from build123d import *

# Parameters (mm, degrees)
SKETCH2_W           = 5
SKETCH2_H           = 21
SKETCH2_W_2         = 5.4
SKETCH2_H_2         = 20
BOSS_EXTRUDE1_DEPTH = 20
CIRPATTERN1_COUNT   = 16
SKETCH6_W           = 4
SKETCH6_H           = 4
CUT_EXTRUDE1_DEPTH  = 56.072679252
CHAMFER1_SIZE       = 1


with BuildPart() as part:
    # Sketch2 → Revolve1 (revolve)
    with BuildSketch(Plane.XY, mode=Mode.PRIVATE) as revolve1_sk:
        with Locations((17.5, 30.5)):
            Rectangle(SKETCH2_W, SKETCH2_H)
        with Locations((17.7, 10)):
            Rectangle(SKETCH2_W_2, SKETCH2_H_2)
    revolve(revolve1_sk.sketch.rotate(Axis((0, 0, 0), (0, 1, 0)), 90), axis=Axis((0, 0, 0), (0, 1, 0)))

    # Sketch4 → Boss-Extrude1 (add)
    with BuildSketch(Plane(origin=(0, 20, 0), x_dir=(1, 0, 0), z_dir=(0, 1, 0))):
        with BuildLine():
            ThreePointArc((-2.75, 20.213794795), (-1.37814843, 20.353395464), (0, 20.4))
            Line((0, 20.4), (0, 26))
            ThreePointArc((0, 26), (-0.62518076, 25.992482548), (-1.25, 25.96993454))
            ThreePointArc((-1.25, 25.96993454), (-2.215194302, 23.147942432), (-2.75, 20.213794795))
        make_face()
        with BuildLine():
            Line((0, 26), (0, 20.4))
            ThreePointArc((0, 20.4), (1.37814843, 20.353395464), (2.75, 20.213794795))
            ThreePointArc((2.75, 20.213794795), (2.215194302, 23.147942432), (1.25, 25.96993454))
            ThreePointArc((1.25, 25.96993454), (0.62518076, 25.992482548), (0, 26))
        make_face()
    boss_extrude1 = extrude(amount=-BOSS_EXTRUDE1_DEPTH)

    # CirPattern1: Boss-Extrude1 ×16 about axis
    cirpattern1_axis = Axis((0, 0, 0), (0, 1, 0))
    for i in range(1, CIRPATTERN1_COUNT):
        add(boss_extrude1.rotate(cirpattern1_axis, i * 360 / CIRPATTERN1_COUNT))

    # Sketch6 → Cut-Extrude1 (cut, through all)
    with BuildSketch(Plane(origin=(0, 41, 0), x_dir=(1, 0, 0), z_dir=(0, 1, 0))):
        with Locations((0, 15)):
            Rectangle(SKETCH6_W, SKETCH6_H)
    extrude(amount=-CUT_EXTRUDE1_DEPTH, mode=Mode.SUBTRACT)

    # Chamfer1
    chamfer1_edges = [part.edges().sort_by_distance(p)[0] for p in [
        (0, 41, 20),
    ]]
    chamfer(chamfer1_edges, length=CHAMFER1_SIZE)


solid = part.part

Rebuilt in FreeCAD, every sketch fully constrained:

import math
import FreeCAD as App
import Part
import Sketcher
Q = App.Units.Quantity


def edges_at(feature, points):
    """Names of the edges that pass closest to the given points."""
    edges = feature.Shape.Edges
    near = lambda p: min(range(len(edges)), key=lambda i: edges[i].distToShape(Part.Vertex(*p))[0])
    return sorted({f"Edge{near(p) + 1}" for p in points})


def add_polygon(sketch, points):
    """Adds a closed chain of lines whose ends are joined by coincident constraints."""
    first, n = sketch.GeometryCount, len(points)
    for a, b in zip(points, points[1:] + points[:1]):
        sketch.addGeometry(Part.LineSegment(App.Vector(*a, 0), App.Vector(*b, 0)), False)
    for i in range(n):
        sketch.addConstraint(Sketcher.Constraint("Coincident", first + i, 2, first + (i + 1) % n, 1))

doc = App.newDocument("Part")
params = doc.addObject("Spreadsheet::Sheet", "Params")
for row, (alias, value) in enumerate([
    ("sketch1_width", "5 mm"),
    ("sketch1_height", "41 mm"),
    ("sketch1_height2", "20 mm"),
    ("sketch1_width2", "5.4 mm"),
    ("revolution_angle", "360 deg"),
    ("sketch2_radius", "20 mm"),
    ("sketch2_radius2", "26.000001 mm"),
    ("sketch2_radius3", "20.4 mm"),
    ("pad1_length", "20 mm"),
    ("sketch3_width", "4 mm"),
    ("chamfer_size", "1 mm"),
], start=1):
    params.set(f"A{row}", alias)
    params.set(f"B{row}", "=" + value)
    params.setAlias(f"B{row}", alias)

body = doc.addObject("PartDesign::Body", "Body")

# Sketch on XY plane
sketch1 = body.newObject("Sketcher::SketchObject", "Sketch")
sketch1.AttachmentSupport = (doc.getObject("XY_Plane"), [""])
sketch1.MapMode = "FlatFace"
add_polygon(sketch1, [(15, 41), (15, 0), (20.4, 0), (20.4, 20), (20, 20), (20, 41)])  # lines 0-5
sketch1.addConstraint([
    Sketcher.Constraint("Vertical", 0),
    Sketcher.Constraint("Horizontal", 1),
    Sketcher.Constraint("Vertical", 2),
    Sketcher.Constraint("Horizontal", 3),
    Sketcher.Constraint("Vertical", 4),
    Sketcher.Constraint("Horizontal", 5),
    Sketcher.Constraint("PointOnObject", 0, 2, -1),
    Sketcher.Constraint("DistanceX", 5, 2, 5, 1, Q("5 mm")),
    Sketcher.Constraint("DistanceY", 0, 2, 0, 1, Q("41 mm")),
    Sketcher.Constraint("DistanceY", 2, 1, 2, 2, Q("20 mm")),
    Sketcher.Constraint("DistanceX", 1, 1, 1, 2, Q("5.4 mm")),
    Sketcher.Constraint("DistanceX", -1, 1, 0, 2, Q("15 mm")),
])
sketch1.setExpression("Constraints[13]", "Params.sketch1_width")
sketch1.setExpression("Constraints[14]", "Params.sketch1_height")
sketch1.setExpression("Constraints[15]", "Params.sketch1_height2")
sketch1.setExpression("Constraints[16]", "Params.sketch1_width2")
revolution = body.newObject("PartDesign::Revolution", "Revolution")
revolution.Profile = sketch1
revolution.ReferenceAxis = (sketch1, ["V_Axis"])
revolution.setExpression("Angle", "Params.revolution_angle")

# Sketch on XZ plane
sketch2 = body.newObject("Sketcher::SketchObject", "Sketch001")
sketch2.AttachmentSupport = (doc.getObject("XZ_Plane"), [""])
sketch2.MapMode = "FlatFace"
sketch2.AttachmentOffset = App.Placement(App.Vector(0, 0, -20), App.Rotation())
sketch2.addGeometry([
    Part.ArcOfCircle(Part.Circle(App.Vector(0, 0, 0), App.Vector(0, 0, 1), 20.4), math.radians(-97.747282), math.radians(-90)),  # 0
    Part.ArcOfCircle(Part.Circle(App.Vector(0, 0, 0), App.Vector(0, 0, 1), 20.4), math.radians(-90), math.radians(-82.252718)),  # 1
    Part.ArcOfCircle(Part.Circle(App.Vector(-17.138466, -18.104547, 0), App.Vector(0, 0, 1), 20), math.radians(-23.158084), math.radians(-6.053808)),  # 2
    Part.ArcOfCircle(Part.Circle(App.Vector(0, 0.000001, 0), App.Vector(0, 0, 1), 26.000001), math.radians(-90), math.radians(-87.244333)),  # 3
    Part.ArcOfCircle(Part.Circle(App.Vector(0, 0.000001, 0), App.Vector(0, 0, 1), 26.000001), math.radians(-92.755667), math.radians(-90)),  # 4
    Part.ArcOfCircle(Part.Circle(App.Vector(17.138466, -18.104547, 0), App.Vector(0, 0, 1), 20), math.radians(-173.946192), math.radians(-156.841916)),  # 5
], False)
sketch2.addConstraint([
    Sketcher.Constraint("Tangent", 0, 2, 1, 1),
    Sketcher.Constraint("Coincident", 1, 2, 2, 2),
    Sketcher.Constraint("Coincident", 2, 1, 3, 2),
    Sketcher.Constraint("Tangent", 3, 1, 4, 2),
    Sketcher.Constraint("Coincident", 4, 1, 5, 2),
    Sketcher.Constraint("Coincident", 5, 1, 0, 1),
    Sketcher.Constraint("Coincident", 0, 3, -1, 1),
    Sketcher.Constraint("Coincident", 3, 3, -1, 1),
    Sketcher.Constraint("Equal", 0, 1),
    Sketcher.Constraint("Equal", 3, 4),
    Sketcher.Constraint("Equal", 2, 5),
    Sketcher.Constraint("Symmetric", 2, 3, 5, 3, -2),
    Sketcher.Constraint("PointOnObject", 0, 2, -2),
    Sketcher.Constraint("PointOnObject", 3, 1, -2),
    Sketcher.Constraint("Radius", 2, Q("20 mm")),
    Sketcher.Constraint("Radius", 3, Q("26.000001 mm")),
    Sketcher.Constraint("Radius", 0, Q("20.4 mm")),
    Sketcher.Constraint("DistanceX", 4, 1, 1, 2, Q("4 mm")),
    Sketcher.Constraint("DistanceX", 2, 1, 1, 2, Q("1.5 mm")),
])
sketch2.setExpression("Constraints[14]", "Params.sketch2_radius")
sketch2.setExpression("Constraints[15]", "Params.sketch2_radius2")
sketch2.setExpression("Constraints[16]", "Params.sketch2_radius3")
pad1 = body.newObject("PartDesign::Pad", "Pad")
pad1.Profile = sketch2
pad1.setExpression("Length", "Params.pad1_length")
doc.recompute()

polarpattern = body.newObject("PartDesign::PolarPattern", "PolarPattern")
polarpattern.Originals = [pad1]
polarpattern.Axis = (doc.getObject("Y_Axis"), [""])
polarpattern.Angle = 360
polarpattern.Occurrences = 16
body.Tip = polarpattern

# Sketch on XZ plane
sketch3 = body.newObject("Sketcher::SketchObject", "Sketch002")
sketch3.AttachmentSupport = (doc.getObject("XZ_Plane"), [""])
sketch3.MapMode = "FlatFace"
sketch3.AttachmentOffset = App.Placement(App.Vector(0, 0, -41), App.Rotation())
add_polygon(sketch3, [(-2, -17), (-2, -13), (2, -13), (2, -17)])  # lines 0-3
sketch3.addConstraint([
    Sketcher.Constraint("Vertical", 0),
    Sketcher.Constraint("Horizontal", 1),
    Sketcher.Constraint("Vertical", 2),
    Sketcher.Constraint("Horizontal", 3),
    Sketcher.Constraint("Equal", 3, 0),
    Sketcher.Constraint("DistanceX", 1, 1, 1, 2, Q("4 mm")),
    Sketcher.Constraint("DistanceX", 0, 2, -1, 1, Q("2 mm")),
    Sketcher.Constraint("DistanceY", 0, 2, -1, 1, Q("13 mm")),
])
sketch3.setExpression("Constraints[9]", "Params.sketch3_width")
pocket1 = body.newObject("PartDesign::Pocket", "Pocket")
pocket1.Profile = sketch3
pocket1.Type = "ThroughAll"
pocket1.Reversed = True
doc.recompute()

chamfer = body.newObject("PartDesign::Chamfer", "Chamfer")
chamfer.Base = (pocket1, edges_at(pocket1, [(0, 41, 20)]))
chamfer.setExpression("Size", "Params.chamfer_size")

doc.recompute()
